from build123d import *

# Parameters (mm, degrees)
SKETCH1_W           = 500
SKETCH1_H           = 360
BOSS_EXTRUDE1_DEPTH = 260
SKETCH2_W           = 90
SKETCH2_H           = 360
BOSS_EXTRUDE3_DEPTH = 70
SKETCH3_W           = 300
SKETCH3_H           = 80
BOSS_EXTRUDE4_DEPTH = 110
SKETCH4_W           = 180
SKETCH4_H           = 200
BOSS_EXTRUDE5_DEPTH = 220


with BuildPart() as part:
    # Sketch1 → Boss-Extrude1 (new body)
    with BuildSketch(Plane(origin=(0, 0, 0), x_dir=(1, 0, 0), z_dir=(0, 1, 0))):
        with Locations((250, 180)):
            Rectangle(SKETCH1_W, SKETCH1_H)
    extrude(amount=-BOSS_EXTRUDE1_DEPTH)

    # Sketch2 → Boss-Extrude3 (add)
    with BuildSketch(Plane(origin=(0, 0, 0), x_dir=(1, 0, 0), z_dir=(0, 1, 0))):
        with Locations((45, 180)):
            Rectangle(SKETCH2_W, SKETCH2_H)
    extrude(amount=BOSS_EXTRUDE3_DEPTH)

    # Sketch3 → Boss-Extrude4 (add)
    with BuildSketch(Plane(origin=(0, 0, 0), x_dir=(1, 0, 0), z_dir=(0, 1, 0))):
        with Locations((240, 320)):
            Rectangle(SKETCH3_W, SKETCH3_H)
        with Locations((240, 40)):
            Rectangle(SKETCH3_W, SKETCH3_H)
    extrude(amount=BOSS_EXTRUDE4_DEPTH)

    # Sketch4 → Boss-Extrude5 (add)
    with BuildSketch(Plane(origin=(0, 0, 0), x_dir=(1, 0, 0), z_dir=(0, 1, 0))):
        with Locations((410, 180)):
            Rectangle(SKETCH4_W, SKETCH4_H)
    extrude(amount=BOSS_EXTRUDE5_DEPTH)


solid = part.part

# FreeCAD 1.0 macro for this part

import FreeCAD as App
import Part
import Sketcher
Q = App.Units.Quantity

doc = App.newDocument("Part")
body = doc.addObject("PartDesign::Body", "Body")

sketch1 = doc.addObject("Sketcher::SketchObject", "Sketch")
body.addObject(sketch1)
sketch1.AttachmentSupport = (doc.XZ_Plane, [""])
sketch1.MapMode = "FlatFace"
sketch1.addGeometry([
    Part.LineSegment(App.Vector(0, -360, 0), App.Vector(0, 0, 0)),
    Part.LineSegment(App.Vector(0, 0, 0), App.Vector(500, 0, 0)),
    Part.LineSegment(App.Vector(500, 0, 0), App.Vector(500, -360, 0)),
    Part.LineSegment(App.Vector(500, -360, 0), App.Vector(0, -360, 0)),
], False)
sketch1.addConstraint([
    Sketcher.Constraint("Coincident", 0, 2, 1, 1),
    Sketcher.Constraint("Coincident", 1, 2, 2, 1),
    Sketcher.Constraint("Coincident", 2, 2, 3, 1),
    Sketcher.Constraint("Coincident", 3, 2, 0, 1),
    Sketcher.Constraint("Vertical", 0),
    Sketcher.Constraint("Horizontal", 1),
    Sketcher.Constraint("Vertical", 2),
    Sketcher.Constraint("Horizontal", 3),
    Sketcher.Constraint("Coincident", 0, 2, -1, 1),
    Sketcher.Constraint("DistanceX", 1, 1, 1, 2, Q("500 mm")),
    Sketcher.Constraint("DistanceY", 0, 1, 0, 2, Q("360 mm")),
])
pad1 = doc.addObject("PartDesign::Pad", "Pad")
body.addObject(pad1)
pad1.Profile = sketch1
pad1.Length = 260

sketch2 = doc.addObject("Sketcher::SketchObject", "Sketch001")
body.addObject(sketch2)
sketch2.AttachmentSupport = (doc.XZ_Plane, [""])
sketch2.MapMode = "FlatFace"
sketch2.addGeometry([
    Part.LineSegment(App.Vector(0, -360, 0), App.Vector(0, 0, 0)),
    Part.LineSegment(App.Vector(0, 0, 0), App.Vector(90, 0, 0)),
    Part.LineSegment(App.Vector(90, 0, 0), App.Vector(90, -360, 0)),
    Part.LineSegment(App.Vector(90, -360, 0), App.Vector(0, -360, 0)),
], False)
sketch2.addConstraint([
    Sketcher.Constraint("Coincident", 0, 2, 1, 1),
    Sketcher.Constraint("Coincident", 1, 2, 2, 1),
    Sketcher.Constraint("Coincident", 2, 2, 3, 1),
    Sketcher.Constraint("Coincident", 3, 2, 0, 1),
    Sketcher.Constraint("Vertical", 0),
    Sketcher.Constraint("Horizontal", 1),
    Sketcher.Constraint("Vertical", 2),
    Sketcher.Constraint("Horizontal", 3),
    Sketcher.Constraint("Coincident", 0, 2, -1, 1),
    Sketcher.Constraint("DistanceX", 1, 1, 1, 2, Q("90 mm")),
    Sketcher.Constraint("DistanceY", 0, 1, 0, 2, Q("360 mm")),
])
pad2 = doc.addObject("PartDesign::Pad", "Pad001")
body.addObject(pad2)
pad2.Profile = sketch2
pad2.Length = 70
pad2.Reversed = True

sketch3 = doc.addObject("Sketcher::SketchObject", "Sketch002")
body.addObject(sketch3)
sketch3.AttachmentSupport = (doc.XZ_Plane, [""])
sketch3.MapMode = "FlatFace"
sketch3.addGeometry([
    Part.LineSegment(App.Vector(90, -360, 0), App.Vector(90, -280, 0)),
    Part.LineSegment(App.Vector(90, -280, 0), App.Vector(390, -280, 0)),
    Part.LineSegment(App.Vector(390, -280, 0), App.Vector(390, -360, 0)),
    Part.LineSegment(App.Vector(390, -360, 0), App.Vector(90, -360, 0)),
    Part.LineSegment(App.Vector(90, -80, 0), App.Vector(90, 0, 0)),
    Part.LineSegment(App.Vector(90, 0, 0), App.Vector(390, 0, 0)),
    Part.LineSegment(App.Vector(390, 0, 0), App.Vector(390, -80, 0)),
    Part.LineSegment(App.Vector(390, -80, 0), App.Vector(90, -80, 0)),
], False)
sketch3.addConstraint([
    Sketcher.Constraint("Coincident", 0, 2, 1, 1),
    Sketcher.Constraint("Coincident", 1, 2, 2, 1),
    Sketcher.Constraint("Coincident", 2, 2, 3, 1),
    Sketcher.Constraint("Coincident", 3, 2, 0, 1),
    Sketcher.Constraint("Coincident", 4, 2, 5, 1),
    Sketcher.Constraint("Coincident", 5, 2, 6, 1),
    Sketcher.Constraint("Coincident", 6, 2, 7, 1),
    Sketcher.Constraint("Coincident", 7, 2, 4, 1),
    Sketcher.Constraint("Vertical", 0),
    Sketcher.Constraint("Horizontal", 1),
    Sketcher.Constraint("Vertical", 2),
    Sketcher.Constraint("Horizontal", 3),
    Sketcher.Constraint("Vertical", 4),
    Sketcher.Constraint("Horizontal", 5),
    Sketcher.Constraint("Vertical", 6),
    Sketcher.Constraint("Horizontal", 7),
    Sketcher.Constraint("PointOnObject", 4, 2, -1),
    Sketcher.Constraint("Vertical", 3, 2, 4, 2),
    Sketcher.Constraint("Vertical", 2, 2, 5, 2),
    Sketcher.Constraint("Equal", 2, 4),
    Sketcher.Constraint("DistanceX", 1, 1, 1, 2, Q("300 mm")),
    Sketcher.Constraint("DistanceY", 0, 1, 0, 2, Q("80 mm")),
    Sketcher.Constraint("DistanceX", -1, 1, 0, 2, Q("90 mm")),
    Sketcher.Constraint("DistanceY", 0, 2, -1, 1, Q("280 mm")),
])
pad3 = doc.addObject("PartDesign::Pad", "Pad002")
body.addObject(pad3)
pad3.Profile = sketch3
pad3.Length = 110
pad3.Reversed = True

sketch4 = doc.addObject("Sketcher::SketchObject", "Sketch003")
body.addObject(sketch4)
sketch4.AttachmentSupport = (doc.XZ_Plane, [""])
sketch4.MapMode = "FlatFace"
sketch4.addGeometry([
    Part.LineSegment(App.Vector(320, -280, 0), App.Vector(320, -80, 0)),
    Part.LineSegment(App.Vector(320, -80, 0), App.Vector(500, -80, 0)),
    Part.LineSegment(App.Vector(500, -80, 0), App.Vector(500, -280, 0)),
    Part.LineSegment(App.Vector(500, -280, 0), App.Vector(320, -280, 0)),
], False)
sketch4.addConstraint([
    Sketcher.Constraint("Coincident", 0, 2, 1, 1),
    Sketcher.Constraint("Coincident", 1, 2, 2, 1),
    Sketcher.Constraint("Coincident", 2, 2, 3, 1),
    Sketcher.Constraint("Coincident", 3, 2, 0, 1),
    Sketcher.Constraint("Vertical", 0),
    Sketcher.Constraint("Horizontal", 1),
    Sketcher.Constraint("Vertical", 2),
    Sketcher.Constraint("Horizontal", 3),
    Sketcher.Constraint("DistanceX", 1, 1, 1, 2, Q("180 mm")),
    Sketcher.Constraint("DistanceY", 0, 1, 0, 2, Q("200 mm")),
    Sketcher.Constraint("DistanceX", -1, 1, 0, 2, Q("320 mm")),
    Sketcher.Constraint("DistanceY", 0, 2, -1, 1, Q("80 mm")),
])
pad4 = doc.addObject("PartDesign::Pad", "Pad003")
body.addObject(pad4)
pad4.Profile = sketch4
pad4.Length = 220
pad4.Reversed = True

doc.recompute()
